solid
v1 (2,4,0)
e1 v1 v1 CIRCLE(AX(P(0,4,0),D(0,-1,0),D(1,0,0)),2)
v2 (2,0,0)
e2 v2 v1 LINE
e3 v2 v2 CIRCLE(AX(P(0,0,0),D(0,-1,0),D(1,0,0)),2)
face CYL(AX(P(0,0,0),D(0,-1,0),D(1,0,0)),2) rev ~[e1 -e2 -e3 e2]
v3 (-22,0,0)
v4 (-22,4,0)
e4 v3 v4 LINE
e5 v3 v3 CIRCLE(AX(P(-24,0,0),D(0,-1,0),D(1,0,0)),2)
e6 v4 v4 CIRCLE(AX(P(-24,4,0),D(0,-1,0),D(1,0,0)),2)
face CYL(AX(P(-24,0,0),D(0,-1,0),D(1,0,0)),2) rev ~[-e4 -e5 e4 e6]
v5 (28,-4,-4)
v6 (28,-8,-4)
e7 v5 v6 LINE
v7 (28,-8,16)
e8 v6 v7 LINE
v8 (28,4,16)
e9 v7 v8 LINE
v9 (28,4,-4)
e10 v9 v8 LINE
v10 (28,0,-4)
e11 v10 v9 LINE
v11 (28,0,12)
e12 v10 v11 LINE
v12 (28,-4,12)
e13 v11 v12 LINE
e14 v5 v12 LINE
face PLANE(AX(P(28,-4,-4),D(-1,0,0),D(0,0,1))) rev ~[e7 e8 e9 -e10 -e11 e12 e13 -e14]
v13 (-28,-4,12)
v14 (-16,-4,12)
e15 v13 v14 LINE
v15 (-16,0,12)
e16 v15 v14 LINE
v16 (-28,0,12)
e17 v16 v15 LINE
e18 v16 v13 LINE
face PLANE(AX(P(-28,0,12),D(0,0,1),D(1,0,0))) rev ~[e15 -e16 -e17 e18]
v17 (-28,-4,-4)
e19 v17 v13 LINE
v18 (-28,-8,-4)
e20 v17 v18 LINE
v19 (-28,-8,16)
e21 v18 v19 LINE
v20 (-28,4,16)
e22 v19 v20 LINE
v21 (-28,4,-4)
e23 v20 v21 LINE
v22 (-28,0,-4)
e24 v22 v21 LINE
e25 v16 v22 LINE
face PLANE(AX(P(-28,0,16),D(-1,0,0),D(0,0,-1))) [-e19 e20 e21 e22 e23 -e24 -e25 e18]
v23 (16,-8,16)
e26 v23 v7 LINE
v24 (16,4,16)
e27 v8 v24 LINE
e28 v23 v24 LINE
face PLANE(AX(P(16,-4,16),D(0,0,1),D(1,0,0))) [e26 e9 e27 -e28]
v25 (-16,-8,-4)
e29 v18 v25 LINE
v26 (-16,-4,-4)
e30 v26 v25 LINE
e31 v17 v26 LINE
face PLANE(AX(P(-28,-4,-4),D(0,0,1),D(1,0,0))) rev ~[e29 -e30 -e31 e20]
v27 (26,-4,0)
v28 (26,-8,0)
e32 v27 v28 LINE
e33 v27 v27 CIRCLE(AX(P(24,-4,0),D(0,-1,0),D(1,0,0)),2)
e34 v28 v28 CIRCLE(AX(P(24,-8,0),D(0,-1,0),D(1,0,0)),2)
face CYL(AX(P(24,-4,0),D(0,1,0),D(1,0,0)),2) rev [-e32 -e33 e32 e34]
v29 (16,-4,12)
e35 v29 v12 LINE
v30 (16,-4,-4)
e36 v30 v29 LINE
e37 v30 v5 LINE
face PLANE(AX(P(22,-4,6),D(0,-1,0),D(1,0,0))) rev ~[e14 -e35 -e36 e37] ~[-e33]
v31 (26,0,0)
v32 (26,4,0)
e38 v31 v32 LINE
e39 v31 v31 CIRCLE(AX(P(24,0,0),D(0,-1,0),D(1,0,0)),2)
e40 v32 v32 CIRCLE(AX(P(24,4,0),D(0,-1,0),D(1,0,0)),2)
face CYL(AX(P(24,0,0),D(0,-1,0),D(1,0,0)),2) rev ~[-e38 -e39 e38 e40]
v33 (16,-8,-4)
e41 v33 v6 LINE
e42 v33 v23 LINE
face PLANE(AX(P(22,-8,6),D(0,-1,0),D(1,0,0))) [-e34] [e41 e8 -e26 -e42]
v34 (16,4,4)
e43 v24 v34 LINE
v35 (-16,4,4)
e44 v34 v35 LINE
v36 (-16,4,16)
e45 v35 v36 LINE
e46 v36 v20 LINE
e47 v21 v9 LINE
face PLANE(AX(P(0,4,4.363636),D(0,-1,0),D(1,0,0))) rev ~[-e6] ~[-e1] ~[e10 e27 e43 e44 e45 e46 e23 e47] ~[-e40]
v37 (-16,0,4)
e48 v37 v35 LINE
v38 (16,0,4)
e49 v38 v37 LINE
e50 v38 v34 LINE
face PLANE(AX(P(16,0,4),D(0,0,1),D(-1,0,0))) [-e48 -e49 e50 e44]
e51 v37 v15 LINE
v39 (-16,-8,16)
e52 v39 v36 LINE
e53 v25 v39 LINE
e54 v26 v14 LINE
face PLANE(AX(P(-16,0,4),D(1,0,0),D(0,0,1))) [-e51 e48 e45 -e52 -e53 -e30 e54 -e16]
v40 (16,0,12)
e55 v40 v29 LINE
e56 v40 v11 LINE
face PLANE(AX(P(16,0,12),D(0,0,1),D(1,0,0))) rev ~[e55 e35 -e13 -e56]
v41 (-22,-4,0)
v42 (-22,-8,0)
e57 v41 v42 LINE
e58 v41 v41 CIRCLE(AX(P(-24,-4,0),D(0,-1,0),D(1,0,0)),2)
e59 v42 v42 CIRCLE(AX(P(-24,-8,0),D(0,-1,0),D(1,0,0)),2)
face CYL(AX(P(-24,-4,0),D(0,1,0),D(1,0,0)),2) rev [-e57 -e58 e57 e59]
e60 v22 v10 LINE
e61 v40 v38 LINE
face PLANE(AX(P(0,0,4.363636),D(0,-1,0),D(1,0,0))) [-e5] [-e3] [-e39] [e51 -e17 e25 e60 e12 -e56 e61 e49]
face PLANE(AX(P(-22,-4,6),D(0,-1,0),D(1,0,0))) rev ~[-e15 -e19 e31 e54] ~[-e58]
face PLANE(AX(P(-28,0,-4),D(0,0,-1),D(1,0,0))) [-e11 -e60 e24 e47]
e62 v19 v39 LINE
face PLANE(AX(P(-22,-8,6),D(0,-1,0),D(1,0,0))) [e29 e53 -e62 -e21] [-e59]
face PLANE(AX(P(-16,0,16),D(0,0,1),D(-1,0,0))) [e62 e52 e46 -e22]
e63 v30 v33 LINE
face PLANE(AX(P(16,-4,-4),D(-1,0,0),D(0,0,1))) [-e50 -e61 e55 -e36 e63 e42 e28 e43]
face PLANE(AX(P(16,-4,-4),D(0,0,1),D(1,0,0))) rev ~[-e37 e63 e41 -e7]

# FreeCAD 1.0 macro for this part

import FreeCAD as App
import Part
import Sketcher

V = App.Vector
Q = App.Units.Quantity


def add_polygon(sketch, points):
    """Adds a closed chain of lines whose ends are joined by coincident constraints."""
    first, n = sketch.GeometryCount, len(points)
    for a, b in zip(points, points[1:] + points[:1]):
        sketch.addGeometry(Part.LineSegment(App.Vector(*a, 0), App.Vector(*b, 0)), False)
    for i in range(n):
        sketch.addConstraint(Sketcher.Constraint("Coincident", first + i, 2, first + (i + 1) % n, 1))

doc = App.newDocument("Part")
body = doc.addObject("PartDesign::Body", "Body")

# Sketch on XZ plane
sketch1 = body.newObject("Sketcher::SketchObject", "Sketch")
sketch1.AttachmentSupport = (doc.getObject("XZ_Plane"), [""])
sketch1.MapMode = "FlatFace"
add_polygon(sketch1, [(-28, -4), (28, -4), (28, 16), (16, 16), (16, 4), (-16, 4), (-16, 16), (-28, 16)])  # lines 0-7
sketch1.addGeometry(Part.Circle(V(-24, 0, 0), V(0, 0, 1), 2), False)  # 8
sketch1.addGeometry(Part.Circle(V(0, 0, 0), V(0, 0, 1), 2), False)  # 9
sketch1.addGeometry(Part.Circle(V(24, 0, 0), V(0, 0, 1), 2), False)  # 10
sketch1.addConstraint([
    Sketcher.Constraint("Horizontal", 0),
    Sketcher.Constraint("Vertical", 1),
    Sketcher.Constraint("Horizontal", 2),
    Sketcher.Constraint("Vertical", 3),
    Sketcher.Constraint("Horizontal", 4),
    Sketcher.Constraint("Vertical", 5),
    Sketcher.Constraint("Horizontal", 6),
    Sketcher.Constraint("Vertical", 7),
    Sketcher.Constraint("Coincident", 9, 3, -1, 1),
    Sketcher.Constraint("Equal", 8, 9),
    Sketcher.Constraint("Equal", 9, 10),
    Sketcher.Constraint("Symmetric", 8, 3, 10, 3, -1, 1),
    Sketcher.Constraint("Symmetric", 2, 2, 5, 2, -2),
    Sketcher.Constraint("PointOnObject", 8, 3, -1),
    Sketcher.Constraint("Equal", 2, 6),
    Sketcher.Constraint("Equal", 6, 3),
    Sketcher.Constraint("Diameter", 8, Q("4 mm")),
    Sketcher.Constraint("DistanceX", 0, 1, 0, 2, Q("56 mm")),
    Sketcher.Constraint("DistanceX", 2, 2, 2, 1, Q("12 mm")),
    Sketcher.Constraint("DistanceY", 1, 1, 1, 2, Q("20 mm")),
    Sketcher.Constraint("DistanceX", 8, 3, -1, 1, Q("24 mm")),
    Sketcher.Constraint("DistanceY", 0, 2, -1, 1, Q("4 mm")),
])
pad1 = body.newObject("PartDesign::Pad", "Pad")
pad1.Profile = sketch1
pad1.Length = 4
pad1.Reversed = True

# Sketch on XZ plane
sketch2 = body.newObject("Sketcher::SketchObject", "Sketch001")
sketch2.AttachmentSupport = (doc.getObject("XZ_Plane"), [""])
sketch2.MapMode = "FlatFace"
add_polygon(sketch2, [(16, 16), (16, 12), (28, 12), (28, 16)])  # lines 0-3
add_polygon(sketch2, [(-28, 16), (-28, 12), (-16, 12), (-16, 16)])  # lines 4-7
sketch2.addConstraint([
    Sketcher.Constraint("Vertical", 0),
    Sketcher.Constraint("Horizontal", 1),
    Sketcher.Constraint("Vertical", 2),
    Sketcher.Constraint("Horizontal", 3),
    Sketcher.Constraint("Vertical", 4),
    Sketcher.Constraint("Horizontal", 5),
    Sketcher.Constraint("Vertical", 6),
    Sketcher.Constraint("Horizontal", 7),
    Sketcher.Constraint("Symmetric", 1, 2, 4, 2, -2),
    Sketcher.Constraint("Symmetric", 3, 2, 6, 2, -2),
    Sketcher.Constraint("DistanceX", 1, 1, 1, 2, Q("12 mm")),
    Sketcher.Constraint("DistanceY", 0, 2, 0, 1, Q("4 mm")),
    Sketcher.Constraint("DistanceX", -1, 1, 0, 2, Q("16 mm")),
    Sketcher.Constraint("DistanceY", -1, 1, 0, 2, Q("12 mm")),
])
pad2 = body.newObject("PartDesign::Pad", "Pad001")
pad2.Profile = sketch2
pad2.Length = 4

# Sketch on XZ plane
sketch3 = body.newObject("Sketcher::SketchObject", "Sketch002")
sketch3.AttachmentSupport = (doc.getObject("XZ_Plane"), [""])
sketch3.MapMode = "FlatFace"
sketch3.AttachmentOffset = App.Placement(V(0, 0, 4), App.Rotation())
add_polygon(sketch3, [(16, 16), (16, -4), (28, -4), (28, 16)])  # lines 0-3
sketch3.addGeometry(Part.Circle(V(24, 0, 0), V(0, 0, 1), 2), False)  # 4
add_polygon(sketch3, [(-28, 16), (-28, -4), (-16, -4), (-16, 16)])  # lines 5-8
sketch3.addGeometry(Part.Circle(V(-24, 0, 0), V(0, 0, 1), 2), False)  # 9
sketch3.addConstraint([
    Sketcher.Constraint("Vertical", 0),
    Sketcher.Constraint("Horizontal", 1),
    Sketcher.Constraint("Vertical", 2),
    Sketcher.Constraint("Horizontal", 3),
    Sketcher.Constraint("Vertical", 5),
    Sketcher.Constraint("Horizontal", 6),
    Sketcher.Constraint("Vertical", 7),
    Sketcher.Constraint("Horizontal", 8),
    Sketcher.Constraint("Equal", 4, 9),
    Sketcher.Constraint("Symmetric", 4, 3, 9, 3, -1, 1),
    Sketcher.Constraint("Symmetric", 1, 2, 5, 2, -2),
    Sketcher.Constraint("Symmetric", 3, 2, 7, 2, -2),
    Sketcher.Constraint("PointOnObject", 4, 3, -1),
    Sketcher.Constraint("Diameter", 4, Q("4 mm")),
    Sketcher.Constraint("DistanceX", 1, 1, 1, 2, Q("12 mm")),
    Sketcher.Constraint("DistanceY", 0, 2, 0, 1, Q("20 mm")),
    Sketcher.Constraint("DistanceX", -1, 1, 4, 3, Q("24 mm")),
    Sketcher.Constraint("DistanceX", -1, 1, 0, 2, Q("16 mm")),
    Sketcher.Constraint("DistanceY", 0, 2, -1, 1, Q("4 mm")),
])
pad3 = body.newObject("PartDesign::Pad", "Pad002")
pad3.Profile = sketch3
pad3.Length = 4

doc.recompute()
